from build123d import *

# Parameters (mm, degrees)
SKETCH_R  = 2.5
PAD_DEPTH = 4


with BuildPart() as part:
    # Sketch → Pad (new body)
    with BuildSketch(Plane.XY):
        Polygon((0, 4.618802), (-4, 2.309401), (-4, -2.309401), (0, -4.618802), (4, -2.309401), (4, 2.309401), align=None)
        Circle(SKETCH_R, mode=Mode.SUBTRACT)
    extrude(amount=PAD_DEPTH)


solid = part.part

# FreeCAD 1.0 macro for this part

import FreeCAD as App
import Part
import Sketcher
Q = App.Units.Quantity


def add_polygon(sketch, points):
    """Adds a closed chain of lines whose ends are joined by coincident constraints."""
    first, n = sketch.GeometryCount, len(points)
    for a, b in zip(points, points[1:] + points[:1]):
        sketch.addGeometry(Part.LineSegment(App.Vector(*a, 0), App.Vector(*b, 0)), False)
    for i in range(n):
        sketch.addConstraint(Sketcher.Constraint("Coincident", first + i, 2, first + (i + 1) % n, 1))

doc = App.newDocument("Part")
body = doc.addObject("PartDesign::Body", "Body")

# Sketch on XY plane
sketch1 = doc.addObject("Sketcher::SketchObject", "Sketch")
body.addObject(sketch1)
sketch1.AttachmentSupport = (doc.XY_Plane, [""])
sketch1.MapMode = "FlatFace"
add_polygon(sketch1, [(0, 4.6), (-4, 2.3), (-4, -2.3), (0, -4.6), (4, -2.3), (4, 2.3)])  # lines 0-5
sketch1.addGeometry(Part.Circle(App.Vector(0, 0, 0), App.Vector(0, 0, 1), 2.5), False)  # 6
sketch1.addConstraint([
    Sketcher.Constraint("Vertical", 1),
    Sketcher.Constraint("Vertical", 4),
    Sketcher.Constraint("Coincident", 6, 3, -1, 1),
    Sketcher.Constraint("Symmetric", 0, 2, 3, 2, -1, 1),
    Sketcher.Constraint("Symmetric", 2, 2, 5, 2, -1, 1),
    Sketcher.Constraint("PointOnObject", 2, 2, -2),
    Sketcher.Constraint("Parallel", 2, 5),
    Sketcher.Constraint("Horizontal", 1, 2, 3, 2),
    Sketcher.Constraint("Diameter", 6, Q("5 mm")),
    Sketcher.Constraint("Angle", 0, Q("-150.000001 deg")),
    Sketcher.Constraint("DistanceX", 0, 2, -1, 1, Q("4 mm")),
    Sketcher.Constraint("DistanceY", 1, 2, 1, 1, Q("4.618802 mm")),
])
pad1 = doc.addObject("PartDesign::Pad", "Pad")
body.addObject(pad1)
pad1.Profile = sketch1
pad1.Length = 4

doc.recompute()
